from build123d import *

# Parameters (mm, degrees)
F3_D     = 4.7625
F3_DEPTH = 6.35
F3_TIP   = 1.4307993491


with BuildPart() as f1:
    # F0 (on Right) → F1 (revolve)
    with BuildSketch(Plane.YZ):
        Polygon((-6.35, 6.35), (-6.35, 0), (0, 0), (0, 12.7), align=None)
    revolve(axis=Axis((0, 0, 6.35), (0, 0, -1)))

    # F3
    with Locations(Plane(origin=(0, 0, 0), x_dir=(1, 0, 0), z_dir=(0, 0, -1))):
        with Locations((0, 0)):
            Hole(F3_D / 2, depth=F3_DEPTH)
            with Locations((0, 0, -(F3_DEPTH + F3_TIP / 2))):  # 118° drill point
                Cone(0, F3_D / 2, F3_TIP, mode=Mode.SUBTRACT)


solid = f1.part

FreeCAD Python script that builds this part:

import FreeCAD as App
import Part
import Sketcher
from FreeCAD import Vector
Q = App.Units.Quantity


def add_polygon(sketch, points):
    """Adds a closed chain of lines whose ends are joined by coincident constraints."""
    first, n = sketch.GeometryCount, len(points)
    for a, b in zip(points, points[1:] + points[:1]):
        sketch.addGeometry(Part.LineSegment(App.Vector(*a, 0), App.Vector(*b, 0)), False)
    for i in range(n):
        sketch.addConstraint(Sketcher.Constraint("Coincident", first + i, 2, first + (i + 1) % n, 1))

doc = App.newDocument("Part")
body = doc.addObject("PartDesign::Body", "Body")

sketch1 = body.newObject("Sketcher::SketchObject", "Sketch")
sketch1.AttachmentSupport = (doc.getObject("YZ_Plane"), [""])
sketch1.MapMode = "FlatFace"
add_polygon(sketch1, [(-6, 6), (-6, 0), (0, 0), (0, 13)])
sketch1.addConstraint([
    Sketcher.Constraint("Vertical", 0),
    Sketcher.Constraint("Horizontal", 1),
    Sketcher.Constraint("Vertical", 2),
    Sketcher.Constraint("Coincident", 1, 2, -1, 1),
    Sketcher.Constraint("Equal", 1, 0),
    Sketcher.Constraint("DistanceY", 2, 1, 2, 2, Q("0.5 in")),
    Sketcher.Constraint("Angle", 3, Q("-135 deg")),
])
revolution = body.newObject("PartDesign::Revolution", "Revolution")
revolution.Profile = sketch1
revolution.ReferenceAxis = (sketch1, ["V_Axis"])
revolution.Angle = 360

sketch2 = body.newObject("Sketcher::SketchObject", "Sketch001")
sketch2.AttachmentSupport = (doc.getObject("XY_Plane"), [""])
sketch2.MapMode = "FlatFace"
sketch2.addGeometry(Part.Circle(Vector(0, 0, 0), Vector(0, 0, 1), 2.4), False)
sketch2.addConstraint([
    Sketcher.Constraint("Coincident", 0, 3, -1, 1),
    Sketcher.Constraint("Diameter", 0, Q("0.1875 in")),
])
doc.recompute()
hole = body.newObject("PartDesign::Hole", "Hole")
hole.Profile = sketch2
hole.ThreadType = "None"
hole.Diameter = Q("0.1875 in")
hole.DepthType = "Dimension"
hole.Depth = Q("0.25 in")
hole.DrillPoint = "Angled"
hole.DrillPointAngle = 118
hole.Reversed = True

doc.recompute()
